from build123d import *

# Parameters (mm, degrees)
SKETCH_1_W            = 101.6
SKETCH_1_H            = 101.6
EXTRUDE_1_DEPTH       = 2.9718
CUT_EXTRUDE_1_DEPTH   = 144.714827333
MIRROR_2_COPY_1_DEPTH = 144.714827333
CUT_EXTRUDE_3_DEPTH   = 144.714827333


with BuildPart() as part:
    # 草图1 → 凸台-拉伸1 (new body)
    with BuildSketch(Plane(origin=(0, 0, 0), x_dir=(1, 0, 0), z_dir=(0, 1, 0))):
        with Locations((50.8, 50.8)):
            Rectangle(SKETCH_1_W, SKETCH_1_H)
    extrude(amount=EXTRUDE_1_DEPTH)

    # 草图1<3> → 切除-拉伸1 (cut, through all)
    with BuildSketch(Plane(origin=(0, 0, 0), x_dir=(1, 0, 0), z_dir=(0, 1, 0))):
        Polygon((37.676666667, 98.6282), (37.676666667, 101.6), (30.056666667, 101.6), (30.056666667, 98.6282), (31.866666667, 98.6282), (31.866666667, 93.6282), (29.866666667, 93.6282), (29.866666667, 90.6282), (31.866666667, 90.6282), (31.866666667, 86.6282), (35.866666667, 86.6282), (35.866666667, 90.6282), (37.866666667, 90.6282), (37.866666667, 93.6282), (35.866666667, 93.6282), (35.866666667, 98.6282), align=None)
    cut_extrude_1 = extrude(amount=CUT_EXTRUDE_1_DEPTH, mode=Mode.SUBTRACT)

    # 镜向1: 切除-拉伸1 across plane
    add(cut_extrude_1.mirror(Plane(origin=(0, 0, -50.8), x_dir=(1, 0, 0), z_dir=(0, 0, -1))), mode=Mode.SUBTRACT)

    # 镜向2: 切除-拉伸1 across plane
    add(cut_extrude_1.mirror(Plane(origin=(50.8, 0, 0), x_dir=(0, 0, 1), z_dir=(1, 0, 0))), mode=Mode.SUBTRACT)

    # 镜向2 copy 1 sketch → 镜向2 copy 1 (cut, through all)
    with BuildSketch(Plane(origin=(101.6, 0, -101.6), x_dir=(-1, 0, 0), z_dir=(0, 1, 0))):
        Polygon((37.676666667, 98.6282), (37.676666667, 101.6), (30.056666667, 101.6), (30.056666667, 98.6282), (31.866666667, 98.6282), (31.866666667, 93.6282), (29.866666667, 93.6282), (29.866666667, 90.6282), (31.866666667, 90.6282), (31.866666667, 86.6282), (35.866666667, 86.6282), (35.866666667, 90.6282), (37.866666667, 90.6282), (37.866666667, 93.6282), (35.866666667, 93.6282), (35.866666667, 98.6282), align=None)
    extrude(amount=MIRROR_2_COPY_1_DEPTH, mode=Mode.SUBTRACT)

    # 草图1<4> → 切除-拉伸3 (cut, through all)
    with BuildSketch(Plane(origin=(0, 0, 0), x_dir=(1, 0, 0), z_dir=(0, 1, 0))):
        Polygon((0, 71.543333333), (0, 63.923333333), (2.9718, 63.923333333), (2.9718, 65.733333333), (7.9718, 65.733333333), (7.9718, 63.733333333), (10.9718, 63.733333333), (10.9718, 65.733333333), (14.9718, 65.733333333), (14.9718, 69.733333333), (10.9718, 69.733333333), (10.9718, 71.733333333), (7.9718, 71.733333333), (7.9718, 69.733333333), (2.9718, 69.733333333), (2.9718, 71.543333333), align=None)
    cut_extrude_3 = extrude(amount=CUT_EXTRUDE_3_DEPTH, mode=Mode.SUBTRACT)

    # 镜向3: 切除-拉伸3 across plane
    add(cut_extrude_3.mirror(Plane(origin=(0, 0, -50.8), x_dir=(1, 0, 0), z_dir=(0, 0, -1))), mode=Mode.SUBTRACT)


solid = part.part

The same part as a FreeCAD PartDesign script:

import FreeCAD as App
import Part
import Sketcher
Q = App.Units.Quantity


def add_polygon(sketch, points):
    """Adds a closed chain of lines whose ends are joined by coincident constraints."""
    first, n = sketch.GeometryCount, len(points)
    for a, b in zip(points, points[1:] + points[:1]):
        sketch.addGeometry(Part.LineSegment(App.Vector(*a, 0), App.Vector(*b, 0)), False)
    for i in range(n):
        sketch.addConstraint(Sketcher.Constraint("Coincident", first + i, 2, first + (i + 1) % n, 1))

doc = App.newDocument("Part")
params = doc.addObject("Spreadsheet::Sheet", "Params")
for row, (alias, value) in enumerate([
    ("sketch1_width", "101.6 mm"),
    ("pad1_length", "2.9718 mm"),
    ("sketch2_width", "2 mm"),
    ("sketch2_width2", "4 mm"),
    ("sketch2_height", "5 mm"),
    ("sketch2_height2", "3 mm"),
    ("sketch2_width3", "7.62 mm"),
    ("sketch3_width", "2 mm"),
    ("sketch3_width2", "4 mm"),
    ("sketch3_height", "5 mm"),
    ("sketch3_height2", "3 mm"),
    ("sketch3_width3", "7.62 mm"),
    ("sketch4_width", "5 mm"),
    ("sketch4_width2", "3 mm"),
    ("sketch4_width3", "4 mm"),
    ("sketch4_height", "2 mm"),
    ("sketch4_height2", "7.62 mm"),
], start=1):
    params.set(f"A{row}", alias)
    params.set(f"B{row}", "=" + value)
    params.setAlias(f"B{row}", alias)

body = doc.addObject("PartDesign::Body", "Body")

# Sketch on XZ plane
sketch1 = doc.addObject("Sketcher::SketchObject", "Sketch")
body.addObject(sketch1)
sketch1.AttachmentSupport = (doc.XZ_Plane, [""])
sketch1.MapMode = "FlatFace"
add_polygon(sketch1, [(0, -102), (0, 0), (102, 0), (102, -102)])  # lines 0-3
sketch1.addConstraint([
    Sketcher.Constraint("Vertical", 0),
    Sketcher.Constraint("Horizontal", 1),
    Sketcher.Constraint("Vertical", 2),
    Sketcher.Constraint("Horizontal", 3),
    Sketcher.Constraint("Coincident", 0, 2, -1, 1),
    Sketcher.Constraint("Equal", 3, 0),
    Sketcher.Constraint("DistanceX", 1, 1, 1, 2, Q("101.6 mm")),
])
sketch1.setExpression("Constraints[10]", "Params.sketch1_width")
pad1 = doc.addObject("PartDesign::Pad", "Pad")
body.addObject(pad1)
pad1.Profile = sketch1
pad1.setExpression("Length", "Params.pad1_length")
pad1.Reversed = True

# Sketch on XZ plane
sketch2 = doc.addObject("Sketcher::SketchObject", "Sketch001")
body.addObject(sketch2)
sketch2.AttachmentSupport = (doc.XZ_Plane, [""])
sketch2.MapMode = "FlatFace"
add_polygon(sketch2, [(37.7, -98.6), (37.7, -101.6), (30.1, -101.6), (30.1, -98.6), (31.9, -98.6), (31.9, -93.6), (29.9, -93.6), (29.9, -90.6), (31.9, -90.6), (31.9, -86.6), (35.9, -86.6), (35.9, -90.6), (37.9, -90.6), (37.9, -93.6), (35.9, -93.6), (35.9, -98.6)])  # lines 0-15
sketch2.addConstraint([
    Sketcher.Constraint("Vertical", 0),
    Sketcher.Constraint("Horizontal", 1),
    Sketcher.Constraint("Vertical", 2),
    Sketcher.Constraint("Horizontal", 3),
    Sketcher.Constraint("Vertical", 4),
    Sketcher.Constraint("Horizontal", 5),
    Sketcher.Constraint("Vertical", 6),
    Sketcher.Constraint("Horizontal", 7),
    Sketcher.Constraint("Vertical", 8),
    Sketcher.Constraint("Horizontal", 9),
    Sketcher.Constraint("Vertical", 10),
    Sketcher.Constraint("Horizontal", 11),
    Sketcher.Constraint("Vertical", 12),
    Sketcher.Constraint("Horizontal", 13),
    Sketcher.Constraint("Vertical", 14),
    Sketcher.Constraint("Horizontal", 15),
    Sketcher.Constraint("Horizontal", 7, 2, 10, 2),
    Sketcher.Constraint("Horizontal", 5, 2, 12, 2),
    Sketcher.Constraint("Horizontal", 3, 2, 14, 2),
    Sketcher.Constraint("Vertical", 4, 2, 7, 2),
    Sketcher.Constraint("Vertical", 10, 2, 13, 2),
    Sketcher.Constraint("Equal", 7, 11),
    Sketcher.Constraint("Equal", 3, 15),
    Sketcher.Constraint("Equal", 9, 8),
    Sketcher.Constraint("DistanceX", 5, 2, 5, 1, Q("2 mm")),
    Sketcher.Constraint("DistanceX", 9, 1, 9, 2, Q("4 mm")),
    Sketcher.Constraint("DistanceY", 4, 1, 4, 2, Q("5 mm")),
    Sketcher.Constraint("DistanceY", 6, 1, 6, 2, Q("3 mm")),
    Sketcher.Constraint("DistanceX", 1, 2, 1, 1, Q("7.62 mm")),
    Sketcher.Constraint("DistanceY", 0, 2, -1, 1, Q("101.6 mm")),
    Sketcher.Constraint("DistanceY", 0, 2, 0, 1, Q("2.9718 mm")),
    Sketcher.Constraint("DistanceX", -1, 1, 0, 2, Q("37.676667 mm")),
])
sketch2.setExpression("Constraints[40]", "Params.sketch2_width")
sketch2.setExpression("Constraints[41]", "Params.sketch2_width2")
sketch2.setExpression("Constraints[42]", "Params.sketch2_height")
sketch2.setExpression("Constraints[43]", "Params.sketch2_height2")
sketch2.setExpression("Constraints[44]", "Params.sketch2_width3")
pocket1 = doc.addObject("PartDesign::Pocket", "Pocket")
body.addObject(pocket1)
pocket1.Profile = sketch2
pocket1.Type = "ThroughAll"
doc.recompute()

datumplane = doc.addObject("PartDesign::Plane", "DatumPlane")
body.addObject(datumplane)
datumplane.AttachmentSupport = (doc.XY_Plane, [""])
datumplane.MapMode = "FlatFace"
datumplane.AttachmentOffset = App.Placement(App.Vector(0, 0, -50.8), App.Rotation())
mirrored = doc.addObject("PartDesign::Mirrored", "Mirrored")
body.addObject(mirrored)
mirrored.Originals = [pocket1]
mirrored.MirrorPlane = (datumplane, [""])
body.Tip = mirrored
doc.recompute()

datumplane2 = doc.addObject("PartDesign::Plane", "DatumPlane001")
body.addObject(datumplane2)
datumplane2.AttachmentSupport = (doc.YZ_Plane, [""])
datumplane2.MapMode = "FlatFace"
datumplane2.AttachmentOffset = App.Placement(App.Vector(0, 0, 50.8), App.Rotation())
mirrored2 = doc.addObject("PartDesign::Mirrored", "Mirrored001")
body.addObject(mirrored2)
mirrored2.Originals = [pocket1]
mirrored2.MirrorPlane = (datumplane2, [""])
body.Tip = mirrored2

# Sketch on XZ plane
sketch3 = doc.addObject("Sketcher::SketchObject", "Sketch002")
body.addObject(sketch3)
sketch3.AttachmentSupport = (doc.XZ_Plane, [""])
sketch3.MapMode = "FlatFace"
add_polygon(sketch3, [(63.9, -3), (63.9, 0), (71.5, 0), (71.5, -3), (69.7, -3), (69.7, -8), (71.7, -8), (71.7, -11), (69.7, -11), (69.7, -15), (65.7, -15), (65.7, -11), (63.7, -11), (63.7, -8), (65.7, -8), (65.7, -3)])  # lines 0-15
sketch3.addConstraint([
    Sketcher.Constraint("Vertical", 0),
    Sketcher.Constraint("Horizontal", 1),
    Sketcher.Constraint("Vertical", 2),
    Sketcher.Constraint("Horizontal", 3),
    Sketcher.Constraint("Vertical", 4),
    Sketcher.Constraint("Horizontal", 5),
    Sketcher.Constraint("Vertical", 6),
    Sketcher.Constraint("Horizontal", 7),
    Sketcher.Constraint("Vertical", 8),
    Sketcher.Constraint("Horizontal", 9),
    Sketcher.Constraint("Vertical", 10),
    Sketcher.Constraint("Horizontal", 11),
    Sketcher.Constraint("Vertical", 12),
    Sketcher.Constraint("Horizontal", 13),
    Sketcher.Constraint("Vertical", 14),
    Sketcher.Constraint("Horizontal", 15),
    Sketcher.Constraint("PointOnObject", 0, 2, -1),
    Sketcher.Constraint("Horizontal", 7, 2, 10, 2),
    Sketcher.Constraint("Horizontal", 5, 2, 12, 2),
    Sketcher.Constraint("Horizontal", 3, 2, 14, 2),
    Sketcher.Constraint("Vertical", 4, 2, 7, 2),
    Sketcher.Constraint("Vertical", 10, 2, 13, 2),
    Sketcher.Constraint("Equal", 7, 11),
    Sketcher.Constraint("Equal", 3, 15),
    Sketcher.Constraint("Equal", 9, 8),
    Sketcher.Constraint("DistanceX", 5, 1, 5, 2, Q("2 mm")),
    Sketcher.Constraint("DistanceX", 9, 2, 9, 1, Q("4 mm")),
    Sketcher.Constraint("DistanceY", 4, 2, 4, 1, Q("5 mm")),
    Sketcher.Constraint("DistanceY", 6, 2, 6, 1, Q("3 mm")),
    Sketcher.Constraint("DistanceX", 1, 1, 1, 2, Q("7.62 mm")),
    Sketcher.Constraint("DistanceY", 0, 1, 0, 2, Q("2.9718 mm")),
    Sketcher.Constraint("DistanceX", -1, 1, 0, 2, Q("63.923333 mm")),
])
sketch3.setExpression("Constraints[41]", "Params.sketch3_width")
sketch3.setExpression("Constraints[42]", "Params.sketch3_width2")
sketch3.setExpression("Constraints[43]", "Params.sketch3_height")
sketch3.setExpression("Constraints[44]", "Params.sketch3_height2")
sketch3.setExpression("Constraints[45]", "Params.sketch3_width3")
pocket2 = doc.addObject("PartDesign::Pocket", "Pocket001")
body.addObject(pocket2)
pocket2.Profile = sketch3
pocket2.Type = "ThroughAll"

# Sketch on XZ plane
sketch4 = doc.addObject("Sketcher::SketchObject", "Sketch003")
body.addObject(sketch4)
sketch4.AttachmentSupport = (doc.XZ_Plane, [""])
sketch4.MapMode = "FlatFace"
add_polygon(sketch4, [(0, -71.5), (0, -63.9), (3, -63.9), (3, -65.7), (8, -65.7), (8, -63.7), (11, -63.7), (11, -65.7), (15, -65.7), (15, -69.7), (11, -69.7), (11, -71.7), (8, -71.7), (8, -69.7), (3, -69.7), (3, -71.5)])  # lines 0-15
sketch4.addConstraint([
    Sketcher.Constraint("Vertical", 0),
    Sketcher.Constraint("Horizontal", 1),
    Sketcher.Constraint("Vertical", 2),
    Sketcher.Constraint("Horizontal", 3),
    Sketcher.Constraint("Vertical", 4),
    Sketcher.Constraint("Horizontal", 5),
    Sketcher.Constraint("Vertical", 6),
    Sketcher.Constraint("Horizontal", 7),
    Sketcher.Constraint("Vertical", 8),
    Sketcher.Constraint("Horizontal", 9),
    Sketcher.Constraint("Vertical", 10),
    Sketcher.Constraint("Horizontal", 11),
    Sketcher.Constraint("Vertical", 12),
    Sketcher.Constraint("Horizontal", 13),
    Sketcher.Constraint("Vertical", 14),
    Sketcher.Constraint("Horizontal", 15),
    Sketcher.Constraint("PointOnObject", 0, 2, -2),
    Sketcher.Constraint("Horizontal", 3, 2, 6, 2),
    Sketcher.Constraint("Horizontal", 9, 2, 12, 2),
    Sketcher.Constraint("Vertical", 6, 2, 9, 2),
    Sketcher.Constraint("Vertical", 4, 2, 11, 2),
    Sketcher.Constraint("Vertical", 2, 2, 13, 2),
    Sketcher.Constraint("Equal", 9, 8),
    Sketcher.Constraint("Equal", 6, 10),
    Sketcher.Constraint("Equal", 2, 14),
    Sketcher.Constraint("DistanceX", 3, 1, 3, 2, Q("5 mm")),
    Sketcher.Constraint("DistanceX", 5, 1, 5, 2, Q("3 mm")),
    Sketcher.Constraint("DistanceX", 7, 1, 7, 2, Q("4 mm")),
    Sketcher.Constraint("DistanceY", 4, 1, 4, 2, Q("2 mm")),
    Sketcher.Constraint("DistanceY", 0, 1, 0, 2, Q("7.62 mm")),
    Sketcher.Constraint("DistanceX", 1, 1, 1, 2, Q("2.9718 mm")),
    Sketcher.Constraint("DistanceY", 0, 2, -1, 1, Q("63.923333 mm")),
])
sketch4.setExpression("Constraints[41]", "Params.sketch4_width")
sketch4.setExpression("Constraints[42]", "Params.sketch4_width2")
sketch4.setExpression("Constraints[43]", "Params.sketch4_width3")
sketch4.setExpression("Constraints[44]", "Params.sketch4_height")
sketch4.setExpression("Constraints[45]", "Params.sketch4_height2")
pocket3 = doc.addObject("PartDesign::Pocket", "Pocket002")
body.addObject(pocket3)
pocket3.Profile = sketch4
pocket3.Type = "ThroughAll"
doc.recompute()

datumplane3 = doc.addObject("PartDesign::Plane", "DatumPlane002")
body.addObject(datumplane3)
datumplane3.AttachmentSupport = (doc.XY_Plane, [""])
datumplane3.MapMode = "FlatFace"
datumplane3.AttachmentOffset = App.Placement(App.Vector(0, 0, -50.8), App.Rotation())
mirrored3 = doc.addObject("PartDesign::Mirrored", "Mirrored002")
body.addObject(mirrored3)
mirrored3.Originals = [pocket3]
mirrored3.MirrorPlane = (datumplane3, [""])
body.Tip = mirrored3

doc.recompute()
